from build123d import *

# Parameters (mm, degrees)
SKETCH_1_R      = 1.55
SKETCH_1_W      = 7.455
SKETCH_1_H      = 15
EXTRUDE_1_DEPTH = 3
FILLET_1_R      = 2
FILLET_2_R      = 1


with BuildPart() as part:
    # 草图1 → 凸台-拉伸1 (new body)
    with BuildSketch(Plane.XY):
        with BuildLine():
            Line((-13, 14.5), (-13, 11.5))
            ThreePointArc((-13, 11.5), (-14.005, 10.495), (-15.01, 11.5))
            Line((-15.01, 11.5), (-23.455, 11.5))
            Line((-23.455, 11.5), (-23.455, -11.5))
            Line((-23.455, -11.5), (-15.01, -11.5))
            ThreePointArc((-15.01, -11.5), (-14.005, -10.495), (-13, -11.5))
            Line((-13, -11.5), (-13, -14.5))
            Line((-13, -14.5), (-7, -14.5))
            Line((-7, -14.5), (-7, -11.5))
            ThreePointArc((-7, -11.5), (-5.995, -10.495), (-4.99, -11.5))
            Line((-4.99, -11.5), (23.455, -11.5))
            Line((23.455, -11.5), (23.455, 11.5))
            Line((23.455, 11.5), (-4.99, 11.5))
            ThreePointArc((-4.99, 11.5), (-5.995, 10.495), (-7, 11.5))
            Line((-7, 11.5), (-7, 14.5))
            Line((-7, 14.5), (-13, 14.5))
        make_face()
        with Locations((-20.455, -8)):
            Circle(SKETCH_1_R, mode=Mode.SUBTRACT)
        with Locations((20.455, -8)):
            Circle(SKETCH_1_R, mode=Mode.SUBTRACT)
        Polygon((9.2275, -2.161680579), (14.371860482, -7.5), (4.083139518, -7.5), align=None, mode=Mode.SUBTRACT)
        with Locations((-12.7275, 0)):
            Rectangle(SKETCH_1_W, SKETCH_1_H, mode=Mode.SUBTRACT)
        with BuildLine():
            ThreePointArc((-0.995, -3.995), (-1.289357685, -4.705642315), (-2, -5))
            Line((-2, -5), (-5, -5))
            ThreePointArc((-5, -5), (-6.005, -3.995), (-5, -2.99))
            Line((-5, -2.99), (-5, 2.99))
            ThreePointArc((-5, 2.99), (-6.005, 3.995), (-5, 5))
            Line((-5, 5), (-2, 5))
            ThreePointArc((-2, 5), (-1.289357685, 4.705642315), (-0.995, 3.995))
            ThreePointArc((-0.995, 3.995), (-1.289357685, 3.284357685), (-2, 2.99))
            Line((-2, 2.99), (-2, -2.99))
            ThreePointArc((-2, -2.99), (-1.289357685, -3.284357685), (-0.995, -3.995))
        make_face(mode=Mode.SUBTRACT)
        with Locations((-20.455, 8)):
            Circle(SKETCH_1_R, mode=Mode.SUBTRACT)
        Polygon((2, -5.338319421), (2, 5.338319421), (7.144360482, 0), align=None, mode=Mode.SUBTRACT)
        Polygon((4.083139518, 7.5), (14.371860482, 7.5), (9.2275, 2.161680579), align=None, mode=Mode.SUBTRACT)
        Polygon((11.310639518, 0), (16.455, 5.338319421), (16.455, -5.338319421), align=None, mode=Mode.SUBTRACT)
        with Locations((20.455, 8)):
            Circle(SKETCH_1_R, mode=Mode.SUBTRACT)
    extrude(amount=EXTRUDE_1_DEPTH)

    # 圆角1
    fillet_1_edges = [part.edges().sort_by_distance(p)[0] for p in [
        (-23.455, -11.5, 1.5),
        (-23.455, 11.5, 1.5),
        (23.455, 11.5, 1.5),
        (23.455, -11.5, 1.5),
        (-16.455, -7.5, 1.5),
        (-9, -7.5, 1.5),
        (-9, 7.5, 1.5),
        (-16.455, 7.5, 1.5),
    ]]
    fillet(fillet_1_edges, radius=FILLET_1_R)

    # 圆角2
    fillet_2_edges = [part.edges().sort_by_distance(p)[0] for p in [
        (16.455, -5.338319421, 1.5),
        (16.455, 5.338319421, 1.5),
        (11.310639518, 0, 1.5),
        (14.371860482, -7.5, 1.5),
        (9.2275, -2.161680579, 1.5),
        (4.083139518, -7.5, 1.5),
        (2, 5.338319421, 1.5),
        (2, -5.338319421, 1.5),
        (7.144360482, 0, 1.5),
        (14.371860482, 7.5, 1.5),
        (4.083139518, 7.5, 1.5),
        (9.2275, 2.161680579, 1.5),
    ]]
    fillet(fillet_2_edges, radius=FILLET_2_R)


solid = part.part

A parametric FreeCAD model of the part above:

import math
import FreeCAD as App
import Part
import Sketcher
from FreeCAD import Vector
Q = App.Units.Quantity


def edges_at(feature, points):
    """Names of the edges that pass closest to the given points."""
    edges = feature.Shape.Edges
    near = lambda p: min(range(len(edges)), key=lambda i: edges[i].distToShape(Part.Vertex(*p))[0])
    return sorted({f"Edge{near(p) + 1}" for p in points})

doc = App.newDocument("Part")
body = doc.addObject("PartDesign::Body", "Body")

# Sketch on XY plane
sketch1 = body.newObject("Sketcher::SketchObject", "Sketch")
sketch1.AttachmentSupport = (doc.getObject("XY_Plane"), [""])
sketch1.MapMode = "FlatFace"
sketch1.addGeometry([
    Part.LineSegment(Vector(-13, 14.5, 0), Vector(-13, 11.5, 0)),  # 0
    Part.ArcOfCircle(Part.Circle(Vector(-14, 11.5, 0), Vector(0, 0, 1), 1), math.radians(180), math.radians(360)),  # 1
    Part.LineSegment(Vector(-15, 11.5, 0), Vector(-23.5, 11.5, 0)),  # 2
    Part.LineSegment(Vector(-23.5, 11.5, 0), Vector(-23.5, -11.5, 0)),  # 3
    Part.LineSegment(Vector(-23.5, -11.5, 0), Vector(-15, -11.5, 0)),  # 4
    Part.ArcOfCircle(Part.Circle(Vector(-14, -11.5, 0), Vector(0, 0, 1), 1), math.radians(0), math.radians(180)),  # 5
    Part.LineSegment(Vector(-13, -11.5, 0), Vector(-13, -14.5, 0)),  # 6
    Part.LineSegment(Vector(-13, -14.5, 0), Vector(-7, -14.5, 0)),  # 7
    Part.LineSegment(Vector(-7, -14.5, 0), Vector(-7, -11.5, 0)),  # 8
    Part.ArcOfCircle(Part.Circle(Vector(-6, -11.5, 0), Vector(0, 0, 1), 1), math.radians(0), math.radians(180)),  # 9
    Part.LineSegment(Vector(-5, -11.5, 0), Vector(23.5, -11.5, 0)),  # 10
    Part.LineSegment(Vector(23.5, -11.5, 0), Vector(23.5, 11.5, 0)),  # 11
    Part.LineSegment(Vector(23.5, 11.5, 0), Vector(-5, 11.5, 0)),  # 12
    Part.ArcOfCircle(Part.Circle(Vector(-6, 11.5, 0), Vector(0, 0, 1), 1), math.radians(180), math.radians(360)),  # 13
    Part.LineSegment(Vector(-7, 11.5, 0), Vector(-7, 14.5, 0)),  # 14
    Part.LineSegment(Vector(-7, 14.5, 0), Vector(-13, 14.5, 0)),  # 15
    Part.Circle(Vector(-20.5, -8, 0), Vector(0, 0, 1), 1.6),  # 16
    Part.LineSegment(Vector(-9, -7.5, 0), Vector(-16.5, -7.5, 0)),  # 17
    Part.LineSegment(Vector(-16.5, -7.5, 0), Vector(-16.5, 7.5, 0)),  # 18
    Part.LineSegment(Vector(-16.5, 7.5, 0), Vector(-9, 7.5, 0)),  # 19
    Part.LineSegment(Vector(-9, 7.5, 0), Vector(-9, -7.5, 0)),  # 20
    Part.ArcOfCircle(Part.Circle(Vector(-2, -4, 0), Vector(0, 0, 1), 1), math.radians(0), math.radians(90)),  # 21
    Part.ArcOfCircle(Part.Circle(Vector(-2, -4, 0), Vector(0, 0, 1), 1), math.radians(-90), math.radians(0)),  # 22
    Part.LineSegment(Vector(-2, -5, 0), Vector(-5, -5, 0)),  # 23
    Part.ArcOfCircle(Part.Circle(Vector(-5, -4, 0), Vector(0, 0, 1), 1), math.radians(90), math.radians(270)),  # 24
    Part.LineSegment(Vector(-5, -3, 0), Vector(-5, 3, 0)),  # 25
    Part.ArcOfCircle(Part.Circle(Vector(-5, 4, 0), Vector(0, 0, 1), 1), math.radians(90), math.radians(270)),  # 26
    Part.LineSegment(Vector(-5, 5, 0), Vector(-2, 5, 0)),  # 27
    Part.ArcOfCircle(Part.Circle(Vector(-2, 4, 0), Vector(0, 0, 1), 1), math.radians(0), math.radians(90)),  # 28
    Part.ArcOfCircle(Part.Circle(Vector(-2, 4, 0), Vector(0, 0, 1), 1), math.radians(-90), math.radians(0)),  # 29
    Part.LineSegment(Vector(-2, 3, 0), Vector(-2, -3, 0)),  # 30
    Part.LineSegment(Vector(4.1, -7.5, 0), Vector(9.2, -2.2, 0)),  # 31
    Part.LineSegment(Vector(9.2, -2.2, 0), Vector(14.4, -7.5, 0)),  # 32
    Part.LineSegment(Vector(14.4, -7.5, 0), Vector(4.1, -7.5, 0)),  # 33
    Part.Circle(Vector(20.5, -8, 0), Vector(0, 0, 1), 1.6),  # 34
    Part.LineSegment(Vector(7.1, 0, 0), Vector(2, -5.3, 0)),  # 35
    Part.LineSegment(Vector(2, -5.3, 0), Vector(2, 5.3, 0)),  # 36
    Part.LineSegment(Vector(2, 5.3, 0), Vector(7.1, 0, 0)),  # 37
    Part.LineSegment(Vector(16.5, -5.3, 0), Vector(11.3, 0, 0)),  # 38
    Part.LineSegment(Vector(11.3, 0, 0), Vector(16.5, 5.3, 0)),  # 39
    Part.LineSegment(Vector(16.5, 5.3, 0), Vector(16.5, -5.3, 0)),  # 40
    Part.Circle(Vector(-20.5, 8, 0), Vector(0, 0, 1), 1.6),  # 41
    Part.LineSegment(Vector(9.2, 2.2, 0), Vector(4.1, 7.5, 0)),  # 42
    Part.LineSegment(Vector(4.1, 7.5, 0), Vector(14.4, 7.5, 0)),  # 43
    Part.LineSegment(Vector(14.4, 7.5, 0), Vector(9.2, 2.2, 0)),  # 44
    Part.Circle(Vector(20.5, 8, 0), Vector(0, 0, 1), 1.6),  # 45
], False)
sketch1.addConstraint([
    Sketcher.Constraint("Tangent", 0, 2, 1, 2),
    Sketcher.Constraint("Coincident", 1, 1, 2, 1),
    Sketcher.Constraint("Coincident", 2, 2, 3, 1),
    Sketcher.Constraint("Coincident", 3, 2, 4, 1),
    Sketcher.Constraint("Coincident", 4, 2, 5, 2),
    Sketcher.Constraint("Tangent", 5, 1, 6, 1),
    Sketcher.Constraint("Coincident", 6, 2, 7, 1),
    Sketcher.Constraint("Coincident", 7, 2, 8, 1),
    Sketcher.Constraint("Tangent", 8, 2, 9, 2),
    Sketcher.Constraint("Coincident", 9, 1, 10, 1),
    Sketcher.Constraint("Coincident", 10, 2, 11, 1),
    Sketcher.Constraint("Coincident", 11, 2, 12, 1),
    Sketcher.Constraint("Coincident", 12, 2, 13, 2),
    Sketcher.Constraint("Tangent", 13, 1, 14, 1),
    Sketcher.Constraint("Coincident", 14, 2, 15, 1),
    Sketcher.Constraint("Coincident", 15, 2, 0, 1),
    Sketcher.Constraint("Coincident", 17, 2, 18, 1),
    Sketcher.Constraint("Coincident", 18, 2, 19, 1),
    Sketcher.Constraint("Coincident", 19, 2, 20, 1),
    Sketcher.Constraint("Coincident", 20, 2, 17, 1),
    Sketcher.Constraint("Tangent", 21, 1, 22, 2),
    Sketcher.Constraint("Tangent", 22, 1, 23, 1),
    Sketcher.Constraint("Tangent", 23, 2, 24, 2),
    Sketcher.Constraint("Coincident", 24, 1, 25, 1),
    Sketcher.Constraint("Coincident", 25, 2, 26, 2),
    Sketcher.Constraint("Tangent", 26, 1, 27, 1),
    Sketcher.Constraint("Tangent", 27, 2, 28, 2),
    Sketcher.Constraint("Tangent", 28, 1, 29, 2),
    Sketcher.Constraint("Coincident", 29, 1, 30, 1),
    Sketcher.Constraint("Coincident", 30, 2, 21, 2),
    Sketcher.Constraint("Coincident", 31, 2, 32, 1),
    Sketcher.Constraint("Coincident", 32, 2, 33, 1),
    Sketcher.Constraint("Coincident", 33, 2, 31, 1),
    Sketcher.Constraint("Coincident", 35, 2, 36, 1),
    Sketcher.Constraint("Coincident", 36, 2, 37, 1),
    Sketcher.Constraint("Coincident", 37, 2, 35, 1),
    Sketcher.Constraint("Coincident", 38, 2, 39, 1),
    Sketcher.Constraint("Coincident", 39, 2, 40, 1),
    Sketcher.Constraint("Coincident", 40, 2, 38, 1),
    Sketcher.Constraint("Coincident", 42, 2, 43, 1),
    Sketcher.Constraint("Coincident", 43, 2, 44, 1),
    Sketcher.Constraint("Coincident", 44, 2, 42, 1),
    Sketcher.Constraint("Vertical", 0),
    Sketcher.Constraint("Horizontal", 2),
    Sketcher.Constraint("Vertical", 3),
    Sketcher.Constraint("Horizontal", 4),
    Sketcher.Constraint("Vertical", 6),
    Sketcher.Constraint("Horizontal", 7),
    Sketcher.Constraint("Vertical", 8),
    Sketcher.Constraint("Horizontal", 10),
    Sketcher.Constraint("Vertical", 11),
    Sketcher.Constraint("Horizontal", 12),
    Sketcher.Constraint("Vertical", 14),
    Sketcher.Constraint("Horizontal", 15),
    Sketcher.Constraint("Horizontal", 17),
    Sketcher.Constraint("Vertical", 18),
    Sketcher.Constraint("Horizontal", 19),
    Sketcher.Constraint("Vertical", 20),
    Sketcher.Constraint("Horizontal", 23),
    Sketcher.Constraint("Vertical", 25),
    Sketcher.Constraint("Horizontal", 27),
    Sketcher.Constraint("Vertical", 30),
    Sketcher.Constraint("Horizontal", 33),
    Sketcher.Constraint("Vertical", 36),
    Sketcher.Constraint("Vertical", 40),
    Sketcher.Constraint("Horizontal", 43),
    Sketcher.Constraint("Equal", 1, 5),
    Sketcher.Constraint("Equal", 5, 9),
    Sketcher.Constraint("Equal", 9, 13),
    Sketcher.Constraint("Equal", 13, 21),
    Sketcher.Constraint("Equal", 21, 22),
    Sketcher.Constraint("Equal", 22, 24),
    Sketcher.Constraint("Equal", 24, 26),
    Sketcher.Constraint("Equal", 26, 28),
    Sketcher.Constraint("Equal", 28, 29),
    Sketcher.Constraint("Equal", 16, 34),
    Sketcher.Constraint("Equal", 34, 41),
    Sketcher.Constraint("Equal", 41, 45),
    Sketcher.Constraint("Symmetric", 34, 3, 41, 3, -1, 1),
    Sketcher.Constraint("Symmetric", 16, 3, 45, 3, -1, 1),
    Sketcher.Constraint("Symmetric", 2, 2, 10, 2, -1, 1),
    Sketcher.Constraint("Symmetric", 16, 3, 34, 3, -2),
    Sketcher.Constraint("Symmetric", 1, 3, 5, 3, -1),
    Sketcher.Constraint("Symmetric", 9, 3, 13, 3, -1),
    Sketcher.Constraint("Symmetric", 24, 3, 26, 3, -1),
    Sketcher.Constraint("Symmetric", 21, 1, 28, 1, -1),
    Sketcher.Constraint("Symmetric", 33, 2, 42, 2, -1),
    Sketcher.Constraint("Symmetric", 31, 2, 44, 2, -1),
    Sketcher.Constraint("PointOnObject", 37, 2, -1),
    Sketcher.Constraint("PointOnObject", 38, 2, -1),
    Sketcher.Constraint("Parallel", 31, 35),
    Sketcher.Constraint("Parallel", 32, 37),
    Sketcher.Constraint("Parallel", 37, 38),
    Sketcher.Constraint("Parallel", 35, 39),
    Sketcher.Constraint("Parallel", 38, 42),
    Sketcher.Constraint("Parallel", 39, 44),
    Sketcher.Constraint("Horizontal", 5, 3, 9, 3),
    Sketcher.Constraint("Horizontal", 0, 2, 1, 1),
    Sketcher.Constraint("Horizontal", 9, 3, 3, 2),
    Sketcher.Constraint("Horizontal", 2, 2, 11, 2),
    Sketcher.Constraint("Horizontal", 24, 3, 21, 1),
    Sketcher.Constraint("Horizontal", 20, 2, 32, 2),
    Sketcher.Constraint("Horizontal", 36, 2, 39, 2),
    Sketcher.Constraint("Horizontal", 19, 2, 42, 2),
    Sketcher.Constraint("Vertical", 23, 2, 24, 1),
    Sketcher.Constraint("Vertical", 27, 2, 29, 1),
    Sketcher.Constraint("Equal", 27, 0),
    Sketcher.Constraint("Equal", 0, 6),
    Sketcher.Constraint("Equal", 32, 35),
    Sketcher.Constraint("Diameter", 16, 3.1),
    Sketcher.Constraint("DistanceX", 7, 1, 7, 2, 6.0),
    Sketcher.Constraint("DistanceX", 23, 2, 23, 1, 3.0),
    Sketcher.Constraint("DistanceY", 3, 2, 3, 1, 23.0),
    Sketcher.Constraint("DistanceY", 18, 1, 18, 2, 15.0),
    Sketcher.Constraint("DistanceY", 16, 3, -1, 1, 8.0),
    Sketcher.Constraint("DistanceX", 21, 3, -1, 1, 2.0),
    Sketcher.Constraint("DistanceX", 0, 2, -1, 1, 13.0),
    Sketcher.Constraint("DistanceX", 19, 2, -1, 1, 9.0),
    Sketcher.Constraint("DistanceY", 22, 1, -1, 1, 5.0),
    Sketcher.Constraint("DistanceX", -1, 1, 35, 2, 2.0),
    Sketcher.Constraint("Radius", 1, 1.005),
    Sketcher.Constraint("DistanceX", 2, 2, 41, 3, 3.0),
    Sketcher.Constraint("DistanceX", 16, 3, 17, 2, 4.0),
    Sketcher.Constraint("DistanceX", 39, 2, 45, 3, 4.0),
    Sketcher.Constraint("Angle", 31, Q("46.060011 deg")),
    Sketcher.Constraint("DistanceX", 2, 2, 2, 1, 8.445),
    Sketcher.Constraint("DistanceX", 33, 2, 33, 1, 10.288721),
    Sketcher.Constraint("DistanceX", -1, 1, 31, 2, 9.2275),
])
pad1 = body.newObject("PartDesign::Pad", "Pad")
pad1.Profile = sketch1
pad1.Length = 3
doc.recompute()

fillet = body.newObject("PartDesign::Fillet", "Fillet")
fillet.Base = (pad1, edges_at(pad1, [
    (-23.455, -11.5, 1.5),
    (-23.455, 11.5, 1.5),
    (23.455, 11.5, 1.5),
    (23.455, -11.5, 1.5),
    (-16.455, -7.5, 1.5),
    (-9, -7.5, 1.5),
    (-9, 7.5, 1.5),
    (-16.455, 7.5, 1.5),
]))
fillet.Radius = 2
doc.recompute()

fillet2 = body.newObject("PartDesign::Fillet", "Fillet001")
fillet2.Base = (fillet, edges_at(fillet, [
    (16.455, -5.338, 1.5),
    (16.455, 5.338, 1.5),
    (11.311, 0, 1.5),
    (14.372, -7.5, 1.5),
    (9.227, -2.162, 1.5),
    (4.083, -7.5, 1.5),
    (2, 5.338, 1.5),
    (2, -5.338, 1.5),
    (7.144, 0, 1.5),
    (14.372, 7.5, 1.5),
    (4.083, 7.5, 1.5),
    (9.227, 2.162, 1.5),
]))
fillet2.Radius = 1

doc.recompute()
